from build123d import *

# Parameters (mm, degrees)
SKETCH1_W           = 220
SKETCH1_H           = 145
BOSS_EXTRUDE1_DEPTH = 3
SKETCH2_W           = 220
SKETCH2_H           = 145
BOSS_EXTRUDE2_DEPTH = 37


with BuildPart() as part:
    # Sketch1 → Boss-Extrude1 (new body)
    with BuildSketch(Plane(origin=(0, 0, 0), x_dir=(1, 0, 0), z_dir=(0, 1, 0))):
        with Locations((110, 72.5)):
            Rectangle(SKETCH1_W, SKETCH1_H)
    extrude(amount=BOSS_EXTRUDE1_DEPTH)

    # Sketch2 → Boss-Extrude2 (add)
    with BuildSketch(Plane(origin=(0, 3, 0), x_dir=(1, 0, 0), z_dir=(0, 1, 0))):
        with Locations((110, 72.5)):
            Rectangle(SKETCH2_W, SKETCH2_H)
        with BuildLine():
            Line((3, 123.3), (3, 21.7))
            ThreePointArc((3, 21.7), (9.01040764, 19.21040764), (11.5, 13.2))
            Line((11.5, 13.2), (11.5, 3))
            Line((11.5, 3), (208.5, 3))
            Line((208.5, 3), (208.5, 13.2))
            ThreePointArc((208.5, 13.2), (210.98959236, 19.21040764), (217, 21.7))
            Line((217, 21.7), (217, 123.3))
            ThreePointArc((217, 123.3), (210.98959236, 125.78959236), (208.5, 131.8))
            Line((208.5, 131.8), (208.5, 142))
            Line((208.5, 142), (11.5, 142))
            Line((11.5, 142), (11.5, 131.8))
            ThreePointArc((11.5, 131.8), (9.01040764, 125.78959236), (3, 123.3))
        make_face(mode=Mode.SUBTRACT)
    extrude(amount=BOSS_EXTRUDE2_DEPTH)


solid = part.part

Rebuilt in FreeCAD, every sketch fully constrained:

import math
import FreeCAD as App
import Part
import Sketcher
Q = App.Units.Quantity

doc = App.newDocument("Part")
body = doc.addObject("PartDesign::Body", "Body")

# Sketch on XZ plane
sketch1 = body.newObject("Sketcher::SketchObject", "Sketch")
sketch1.AttachmentSupport = (doc.getObject("XZ_Plane"), [""])
sketch1.MapMode = "FlatFace"
sketch1.addGeometry([
    Part.LineSegment(App.Vector(0, -145, 0), App.Vector(0, 0, 0)),
    Part.LineSegment(App.Vector(0, 0, 0), App.Vector(220, 0, 0)),
    Part.LineSegment(App.Vector(220, 0, 0), App.Vector(220, -145, 0)),
    Part.LineSegment(App.Vector(220, -145, 0), App.Vector(0, -145, 0)),
], False)
sketch1.addConstraint([
    Sketcher.Constraint("Coincident", 0, 2, 1, 1),
    Sketcher.Constraint("Coincident", 1, 2, 2, 1),
    Sketcher.Constraint("Coincident", 2, 2, 3, 1),
    Sketcher.Constraint("Coincident", 3, 2, 0, 1),
    Sketcher.Constraint("Vertical", 0),
    Sketcher.Constraint("Horizontal", 1),
    Sketcher.Constraint("Vertical", 2),
    Sketcher.Constraint("Horizontal", 3),
    Sketcher.Constraint("Coincident", 0, 2, -1, 1),
    Sketcher.Constraint("DistanceX", 1, 1, 1, 2, Q("220 mm")),
    Sketcher.Constraint("DistanceY", 0, 1, 0, 2, Q("145 mm")),
])
pad1 = body.newObject("PartDesign::Pad", "Pad")
pad1.Profile = sketch1
pad1.Length = 3
pad1.Reversed = True

# Sketch on XZ plane
sketch2 = body.newObject("Sketcher::SketchObject", "Sketch001")
sketch2.AttachmentSupport = (doc.getObject("XZ_Plane"), [""])
sketch2.MapMode = "FlatFace"
sketch2.AttachmentOffset = App.Placement(App.Vector(0, 0, -3), App.Rotation())
sketch2.addGeometry([
    Part.LineSegment(App.Vector(0, -145, 0), App.Vector(0, 0, 0)),  # 0
    Part.LineSegment(App.Vector(0, 0, 0), App.Vector(220, 0, 0)),  # 1
    Part.LineSegment(App.Vector(220, 0, 0), App.Vector(220, -145, 0)),  # 2
    Part.LineSegment(App.Vector(220, -145, 0), App.Vector(0, -145, 0)),  # 3
    Part.LineSegment(App.Vector(3, -22, 0), App.Vector(3, -123, 0)),  # 4
    Part.ArcOfCircle(Part.Circle(App.Vector(3, -132, 0), App.Vector(0, 0, 1), 8), math.radians(0), math.radians(90)),  # 5
    Part.LineSegment(App.Vector(12, -132, 0), App.Vector(12, -142, 0)),  # 6
    Part.LineSegment(App.Vector(12, -142, 0), App.Vector(208, -142, 0)),  # 7
    Part.LineSegment(App.Vector(208, -142, 0), App.Vector(208, -132, 0)),  # 8
    Part.ArcOfCircle(Part.Circle(App.Vector(217, -132, 0), App.Vector(0, 0, 1), 8), math.radians(90), math.radians(180)),  # 9
    Part.LineSegment(App.Vector(217, -123, 0), App.Vector(217, -22, 0)),  # 10
    Part.ArcOfCircle(Part.Circle(App.Vector(217, -13, 0), App.Vector(0, 0, 1), 8), math.radians(180), math.radians(270)),  # 11
    Part.LineSegment(App.Vector(208, -13, 0), App.Vector(208, -3, 0)),  # 12
    Part.LineSegment(App.Vector(208, -3, 0), App.Vector(12, -3, 0)),  # 13
    Part.LineSegment(App.Vector(12, -3, 0), App.Vector(12, -13, 0)),  # 14
    Part.ArcOfCircle(Part.Circle(App.Vector(3, -13, 0), App.Vector(0, 0, 1), 8), math.radians(-90), math.radians(0)),  # 15
], False)
sketch2.addConstraint([
    Sketcher.Constraint("Coincident", 0, 2, 1, 1),
    Sketcher.Constraint("Coincident", 1, 2, 2, 1),
    Sketcher.Constraint("Coincident", 2, 2, 3, 1),
    Sketcher.Constraint("Coincident", 3, 2, 0, 1),
    Sketcher.Constraint("Coincident", 4, 2, 5, 2),
    Sketcher.Constraint("Tangent", 5, 1, 6, 1),
    Sketcher.Constraint("Coincident", 6, 2, 7, 1),
    Sketcher.Constraint("Coincident", 7, 2, 8, 1),
    Sketcher.Constraint("Tangent", 8, 2, 9, 2),
    Sketcher.Constraint("Coincident", 9, 1, 10, 1),
    Sketcher.Constraint("Coincident", 10, 2, 11, 2),
    Sketcher.Constraint("Tangent", 11, 1, 12, 1),
    Sketcher.Constraint("Coincident", 12, 2, 13, 1),
    Sketcher.Constraint("Coincident", 13, 2, 14, 1),
    Sketcher.Constraint("Tangent", 14, 2, 15, 2),
    Sketcher.Constraint("Coincident", 15, 1, 4, 1),
    Sketcher.Constraint("Vertical", 0),
    Sketcher.Constraint("Horizontal", 1),
    Sketcher.Constraint("Vertical", 2),
    Sketcher.Constraint("Horizontal", 3),
    Sketcher.Constraint("Vertical", 4),
    Sketcher.Constraint("Vertical", 6),
    Sketcher.Constraint("Horizontal", 7),
    Sketcher.Constraint("Vertical", 8),
    Sketcher.Constraint("Vertical", 10),
    Sketcher.Constraint("Vertical", 12),
    Sketcher.Constraint("Horizontal", 13),
    Sketcher.Constraint("Vertical", 14),
    Sketcher.Constraint("Coincident", 0, 2, -1, 1),
    Sketcher.Constraint("Equal", 5, 9),
    Sketcher.Constraint("Equal", 9, 11),
    Sketcher.Constraint("Equal", 11, 15),
    Sketcher.Constraint("Horizontal", 5, 3, 9, 3),
    Sketcher.Constraint("Horizontal", 11, 3, 15, 3),
    Sketcher.Constraint("Vertical", 9, 3, 11, 3),
    Sketcher.Constraint("Vertical", 5, 3, 15, 3),
    Sketcher.Constraint("Vertical", 15, 3, 4, 2),
    Sketcher.Constraint("Vertical", 11, 3, 9, 1),
    Sketcher.Constraint("Equal", 8, 12),
    Sketcher.Constraint("Radius", 5, Q("8.5 mm")),
    Sketcher.Constraint("DistanceX", 1, 1, 1, 2, Q("220 mm")),
    Sketcher.Constraint("DistanceX", 7, 1, 7, 2, Q("197 mm")),
    Sketcher.Constraint("DistanceY", 0, 1, 0, 2, Q("145 mm")),
    Sketcher.Constraint("DistanceY", 4, 2, 4, 1, Q("101.6 mm")),
    Sketcher.Constraint("DistanceY", 6, 2, 6, 1, Q("10.2 mm")),
    Sketcher.Constraint("DistanceX", -1, 1, 5, 3, Q("3 mm")),
    Sketcher.Constraint("DistanceY", 6, 2, -1, 1, Q("142 mm")),
])
pad2 = body.newObject("PartDesign::Pad", "Pad001")
pad2.Profile = sketch2
pad2.Length = 37
pad2.Reversed = True

doc.recompute()
